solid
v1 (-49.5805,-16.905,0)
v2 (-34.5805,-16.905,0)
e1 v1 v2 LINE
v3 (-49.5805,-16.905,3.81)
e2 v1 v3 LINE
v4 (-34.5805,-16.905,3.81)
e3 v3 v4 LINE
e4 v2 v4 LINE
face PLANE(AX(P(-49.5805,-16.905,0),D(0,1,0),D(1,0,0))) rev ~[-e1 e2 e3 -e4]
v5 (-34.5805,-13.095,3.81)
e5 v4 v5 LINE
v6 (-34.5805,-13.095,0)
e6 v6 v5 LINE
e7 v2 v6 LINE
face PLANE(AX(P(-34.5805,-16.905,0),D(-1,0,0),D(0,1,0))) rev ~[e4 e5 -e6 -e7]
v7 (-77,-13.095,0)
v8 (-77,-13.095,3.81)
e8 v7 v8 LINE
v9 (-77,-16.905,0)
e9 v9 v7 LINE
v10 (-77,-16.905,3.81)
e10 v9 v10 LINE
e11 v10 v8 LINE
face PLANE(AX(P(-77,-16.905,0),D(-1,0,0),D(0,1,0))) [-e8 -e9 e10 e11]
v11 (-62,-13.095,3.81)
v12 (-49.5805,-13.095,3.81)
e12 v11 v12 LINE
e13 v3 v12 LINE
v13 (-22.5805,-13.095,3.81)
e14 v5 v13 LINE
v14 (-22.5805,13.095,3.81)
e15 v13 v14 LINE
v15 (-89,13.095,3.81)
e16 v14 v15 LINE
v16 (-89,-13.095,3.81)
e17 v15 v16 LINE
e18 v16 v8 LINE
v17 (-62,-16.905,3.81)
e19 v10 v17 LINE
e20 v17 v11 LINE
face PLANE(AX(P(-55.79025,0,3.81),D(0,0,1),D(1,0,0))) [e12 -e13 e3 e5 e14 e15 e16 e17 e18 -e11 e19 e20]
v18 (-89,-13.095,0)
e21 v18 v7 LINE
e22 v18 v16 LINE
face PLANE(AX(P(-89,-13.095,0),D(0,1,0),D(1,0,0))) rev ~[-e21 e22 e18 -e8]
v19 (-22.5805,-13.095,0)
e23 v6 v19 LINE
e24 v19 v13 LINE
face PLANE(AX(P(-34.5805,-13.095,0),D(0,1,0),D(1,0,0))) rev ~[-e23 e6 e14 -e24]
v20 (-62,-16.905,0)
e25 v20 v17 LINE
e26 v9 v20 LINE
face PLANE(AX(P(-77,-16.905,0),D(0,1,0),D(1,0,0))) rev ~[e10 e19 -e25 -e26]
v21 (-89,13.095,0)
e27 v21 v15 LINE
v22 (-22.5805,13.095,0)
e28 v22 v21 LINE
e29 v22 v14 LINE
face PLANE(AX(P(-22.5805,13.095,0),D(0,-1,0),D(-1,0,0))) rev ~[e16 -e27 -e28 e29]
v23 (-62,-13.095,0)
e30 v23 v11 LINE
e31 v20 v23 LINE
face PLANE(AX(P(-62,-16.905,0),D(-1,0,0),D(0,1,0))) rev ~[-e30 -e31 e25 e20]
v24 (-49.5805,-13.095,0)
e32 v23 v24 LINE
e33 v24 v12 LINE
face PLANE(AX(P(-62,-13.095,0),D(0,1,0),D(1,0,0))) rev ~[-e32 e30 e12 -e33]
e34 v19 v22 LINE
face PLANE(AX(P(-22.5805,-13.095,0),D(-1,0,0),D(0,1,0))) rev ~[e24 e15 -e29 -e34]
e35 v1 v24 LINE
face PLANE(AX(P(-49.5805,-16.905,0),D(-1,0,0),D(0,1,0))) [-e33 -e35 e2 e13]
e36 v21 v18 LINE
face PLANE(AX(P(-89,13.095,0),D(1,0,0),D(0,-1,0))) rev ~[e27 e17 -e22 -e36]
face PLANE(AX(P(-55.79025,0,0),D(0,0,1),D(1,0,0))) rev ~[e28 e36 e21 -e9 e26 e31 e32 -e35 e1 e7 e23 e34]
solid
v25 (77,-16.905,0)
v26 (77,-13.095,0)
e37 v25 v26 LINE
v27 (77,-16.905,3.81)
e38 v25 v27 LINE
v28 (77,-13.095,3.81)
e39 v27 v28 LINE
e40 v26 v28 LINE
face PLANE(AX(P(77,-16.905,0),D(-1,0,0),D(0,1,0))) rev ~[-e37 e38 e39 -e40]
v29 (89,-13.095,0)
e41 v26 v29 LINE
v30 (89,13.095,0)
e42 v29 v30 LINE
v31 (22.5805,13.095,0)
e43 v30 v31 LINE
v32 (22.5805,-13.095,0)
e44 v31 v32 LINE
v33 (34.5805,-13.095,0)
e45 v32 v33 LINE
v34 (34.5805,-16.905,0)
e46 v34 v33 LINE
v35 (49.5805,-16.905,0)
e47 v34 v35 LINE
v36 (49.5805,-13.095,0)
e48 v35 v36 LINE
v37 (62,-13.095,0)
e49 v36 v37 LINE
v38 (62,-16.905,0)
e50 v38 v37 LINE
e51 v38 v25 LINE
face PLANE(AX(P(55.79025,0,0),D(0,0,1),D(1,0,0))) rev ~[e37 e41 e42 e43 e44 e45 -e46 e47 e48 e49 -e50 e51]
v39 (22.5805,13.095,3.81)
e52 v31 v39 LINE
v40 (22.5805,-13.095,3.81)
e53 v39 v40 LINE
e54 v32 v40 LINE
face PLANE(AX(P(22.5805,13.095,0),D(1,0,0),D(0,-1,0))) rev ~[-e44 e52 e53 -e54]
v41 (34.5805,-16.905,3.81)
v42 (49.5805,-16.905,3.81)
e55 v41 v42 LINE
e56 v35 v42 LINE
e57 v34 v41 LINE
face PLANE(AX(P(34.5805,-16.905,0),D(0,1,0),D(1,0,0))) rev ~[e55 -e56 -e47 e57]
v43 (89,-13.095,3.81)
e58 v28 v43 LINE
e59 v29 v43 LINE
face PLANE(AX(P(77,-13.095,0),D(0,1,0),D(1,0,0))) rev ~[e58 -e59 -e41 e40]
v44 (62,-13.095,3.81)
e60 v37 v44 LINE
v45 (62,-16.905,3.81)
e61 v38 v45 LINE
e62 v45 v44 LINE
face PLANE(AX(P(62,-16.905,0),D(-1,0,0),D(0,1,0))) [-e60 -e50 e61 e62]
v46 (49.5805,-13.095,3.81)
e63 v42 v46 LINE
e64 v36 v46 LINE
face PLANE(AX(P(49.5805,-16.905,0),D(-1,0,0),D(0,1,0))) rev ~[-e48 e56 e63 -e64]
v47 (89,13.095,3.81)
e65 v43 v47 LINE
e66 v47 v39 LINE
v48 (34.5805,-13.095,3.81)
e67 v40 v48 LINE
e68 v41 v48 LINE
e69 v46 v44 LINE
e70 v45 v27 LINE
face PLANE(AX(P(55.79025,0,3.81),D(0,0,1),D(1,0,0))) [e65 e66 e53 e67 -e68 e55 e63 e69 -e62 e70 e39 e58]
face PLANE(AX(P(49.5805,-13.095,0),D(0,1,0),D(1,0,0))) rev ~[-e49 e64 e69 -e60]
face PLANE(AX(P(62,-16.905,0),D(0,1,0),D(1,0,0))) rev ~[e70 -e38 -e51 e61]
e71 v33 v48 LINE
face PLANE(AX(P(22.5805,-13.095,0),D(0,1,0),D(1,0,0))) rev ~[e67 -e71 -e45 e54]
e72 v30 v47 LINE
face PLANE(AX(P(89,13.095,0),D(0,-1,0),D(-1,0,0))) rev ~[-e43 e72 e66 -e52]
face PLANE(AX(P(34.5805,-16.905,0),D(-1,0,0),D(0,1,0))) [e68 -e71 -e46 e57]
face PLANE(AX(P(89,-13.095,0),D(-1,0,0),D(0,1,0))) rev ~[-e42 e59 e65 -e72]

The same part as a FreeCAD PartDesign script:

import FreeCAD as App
import Part
import Sketcher
from FreeCAD import Vector
Q = App.Units.Quantity

doc = App.newDocument("Part")
body = doc.addObject("PartDesign::Body", "Body")
body.AllowCompound = True

# Sketch on XY plane
sketch1 = body.newObject("Sketcher::SketchObject", "Sketch")
sketch1.AttachmentSupport = (doc.getObject("XY_Plane"), [""])
sketch1.MapMode = "FlatFace"
sketch1.addGeometry([
    Part.LineSegment(Vector(-22.5805, -13.095, 0), Vector(-22.5805, 13.095, 0)),  # 0
    Part.LineSegment(Vector(-22.5805, 13.095, 0), Vector(-89, 13.095, 0)),  # 1
    Part.LineSegment(Vector(-89, 13.095, 0), Vector(-89, -13.095, 0)),  # 2
    Part.LineSegment(Vector(-89, -13.095, 0), Vector(-77, -13.095, 0)),  # 3
    Part.LineSegment(Vector(-77, -13.095, 0), Vector(-77, -16.905, 0)),  # 4
    Part.LineSegment(Vector(-77, -16.905, 0), Vector(-62, -16.905, 0)),  # 5
    Part.LineSegment(Vector(-62, -16.905, 0), Vector(-62, -13.095, 0)),  # 6
    Part.LineSegment(Vector(-62, -13.095, 0), Vector(-49.5805, -13.095, 0)),  # 7
    Part.LineSegment(Vector(-49.5805, -13.095, 0), Vector(-49.5805, -16.905, 0)),  # 8
    Part.LineSegment(Vector(-49.5805, -16.905, 0), Vector(-34.5805, -16.905, 0)),  # 9
    Part.LineSegment(Vector(-34.5805, -16.905, 0), Vector(-34.5805, -13.095, 0)),  # 10
    Part.LineSegment(Vector(-34.5805, -13.095, 0), Vector(-22.5805, -13.095, 0)),  # 11
    Part.LineSegment(Vector(89, -13.095, 0), Vector(89, 13.095, 0)),  # 12
    Part.LineSegment(Vector(89, 13.095, 0), Vector(22.5805, 13.095, 0)),  # 13
    Part.LineSegment(Vector(22.5805, 13.095, 0), Vector(22.5805, -13.095, 0)),  # 14
    Part.LineSegment(Vector(22.5805, -13.095, 0), Vector(34.5805, -13.095, 0)),  # 15
    Part.LineSegment(Vector(34.5805, -13.095, 0), Vector(34.5805, -16.905, 0)),  # 16
    Part.LineSegment(Vector(34.5805, -16.905, 0), Vector(49.5805, -16.905, 0)),  # 17
    Part.LineSegment(Vector(49.5805, -16.905, 0), Vector(49.5805, -13.095, 0)),  # 18
    Part.LineSegment(Vector(49.5805, -13.095, 0), Vector(62, -13.095, 0)),  # 19
    Part.LineSegment(Vector(62, -13.095, 0), Vector(62, -16.905, 0)),  # 20
    Part.LineSegment(Vector(62, -16.905, 0), Vector(77, -16.905, 0)),  # 21
    Part.LineSegment(Vector(77, -16.905, 0), Vector(77, -13.095, 0)),  # 22
    Part.LineSegment(Vector(77, -13.095, 0), Vector(89, -13.095, 0)),  # 23
], False)
sketch1.addConstraint([
    Sketcher.Constraint("Coincident", 0, 2, 1, 1),
    Sketcher.Constraint("Coincident", 1, 2, 2, 1),
    Sketcher.Constraint("Coincident", 2, 2, 3, 1),
    Sketcher.Constraint("Coincident", 3, 2, 4, 1),
    Sketcher.Constraint("Coincident", 4, 2, 5, 1),
    Sketcher.Constraint("Coincident", 5, 2, 6, 1),
    Sketcher.Constraint("Coincident", 6, 2, 7, 1),
    Sketcher.Constraint("Coincident", 7, 2, 8, 1),
    Sketcher.Constraint("Coincident", 8, 2, 9, 1),
    Sketcher.Constraint("Coincident", 9, 2, 10, 1),
    Sketcher.Constraint("Coincident", 10, 2, 11, 1),
    Sketcher.Constraint("Coincident", 11, 2, 0, 1),
    Sketcher.Constraint("Coincident", 12, 2, 13, 1),
    Sketcher.Constraint("Coincident", 13, 2, 14, 1),
    Sketcher.Constraint("Coincident", 14, 2, 15, 1),
    Sketcher.Constraint("Coincident", 15, 2, 16, 1),
    Sketcher.Constraint("Coincident", 16, 2, 17, 1),
    Sketcher.Constraint("Coincident", 17, 2, 18, 1),
    Sketcher.Constraint("Coincident", 18, 2, 19, 1),
    Sketcher.Constraint("Coincident", 19, 2, 20, 1),
    Sketcher.Constraint("Coincident", 20, 2, 21, 1),
    Sketcher.Constraint("Coincident", 21, 2, 22, 1),
    Sketcher.Constraint("Coincident", 22, 2, 23, 1),
    Sketcher.Constraint("Coincident", 23, 2, 12, 1),
    Sketcher.Constraint("Vertical", 0),
    Sketcher.Constraint("Horizontal", 1),
    Sketcher.Constraint("Vertical", 2),
    Sketcher.Constraint("Horizontal", 3),
    Sketcher.Constraint("Vertical", 4),
    Sketcher.Constraint("Horizontal", 5),
    Sketcher.Constraint("Vertical", 6),
    Sketcher.Constraint("Horizontal", 7),
    Sketcher.Constraint("Vertical", 8),
    Sketcher.Constraint("Horizontal", 9),
    Sketcher.Constraint("Vertical", 10),
    Sketcher.Constraint("Horizontal", 11),
    Sketcher.Constraint("Vertical", 12),
    Sketcher.Constraint("Horizontal", 13),
    Sketcher.Constraint("Vertical", 14),
    Sketcher.Constraint("Horizontal", 15),
    Sketcher.Constraint("Vertical", 16),
    Sketcher.Constraint("Horizontal", 17),
    Sketcher.Constraint("Vertical", 18),
    Sketcher.Constraint("Horizontal", 19),
    Sketcher.Constraint("Vertical", 20),
    Sketcher.Constraint("Horizontal", 21),
    Sketcher.Constraint("Vertical", 22),
    Sketcher.Constraint("Horizontal", 23),
    Sketcher.Constraint("Symmetric", 2, 2, 12, 2, -1, 1),
    Sketcher.Constraint("Symmetric", 11, 2, 13, 2, -1, 1),
    Sketcher.Constraint("Symmetric", 10, 2, 15, 2, -2),
    Sketcher.Constraint("Symmetric", 8, 2, 17, 2, -2),
    Sketcher.Constraint("Symmetric", 6, 2, 19, 2, -2),
    Sketcher.Constraint("Symmetric", 4, 2, 21, 2, -2),
    Sketcher.Constraint("Horizontal", 3, 2, 6, 2),
    Sketcher.Constraint("Horizontal", 5, 2, 8, 2),
    Sketcher.Constraint("Horizontal", 1, 2, 12, 2),
    Sketcher.Constraint("Horizontal", 19, 2, 22, 2),
    Sketcher.Constraint("Equal", 5, 9),
    Sketcher.Constraint("Equal", 3, 11),
    Sketcher.Constraint("DistanceX", 3, 1, 3, 2, Q("12 mm")),
    Sketcher.Constraint("DistanceX", 5, 1, 5, 2, Q("15 mm")),
    Sketcher.Constraint("DistanceX", 1, 2, -1, 1, Q("89 mm")),
    Sketcher.Constraint("DistanceY", 4, 2, 1, 2, Q("30 mm")),
    Sketcher.Constraint("DistanceY", 0, 1, 0, 2, Q("26.19 mm")),
    Sketcher.Constraint("DistanceX", 1, 2, 1, 1, Q("66.4195 mm")),
])
pad1 = body.newObject("PartDesign::Pad", "Pad")
pad1.Profile = sketch1
pad1.Length = 3.81

doc.recompute()
